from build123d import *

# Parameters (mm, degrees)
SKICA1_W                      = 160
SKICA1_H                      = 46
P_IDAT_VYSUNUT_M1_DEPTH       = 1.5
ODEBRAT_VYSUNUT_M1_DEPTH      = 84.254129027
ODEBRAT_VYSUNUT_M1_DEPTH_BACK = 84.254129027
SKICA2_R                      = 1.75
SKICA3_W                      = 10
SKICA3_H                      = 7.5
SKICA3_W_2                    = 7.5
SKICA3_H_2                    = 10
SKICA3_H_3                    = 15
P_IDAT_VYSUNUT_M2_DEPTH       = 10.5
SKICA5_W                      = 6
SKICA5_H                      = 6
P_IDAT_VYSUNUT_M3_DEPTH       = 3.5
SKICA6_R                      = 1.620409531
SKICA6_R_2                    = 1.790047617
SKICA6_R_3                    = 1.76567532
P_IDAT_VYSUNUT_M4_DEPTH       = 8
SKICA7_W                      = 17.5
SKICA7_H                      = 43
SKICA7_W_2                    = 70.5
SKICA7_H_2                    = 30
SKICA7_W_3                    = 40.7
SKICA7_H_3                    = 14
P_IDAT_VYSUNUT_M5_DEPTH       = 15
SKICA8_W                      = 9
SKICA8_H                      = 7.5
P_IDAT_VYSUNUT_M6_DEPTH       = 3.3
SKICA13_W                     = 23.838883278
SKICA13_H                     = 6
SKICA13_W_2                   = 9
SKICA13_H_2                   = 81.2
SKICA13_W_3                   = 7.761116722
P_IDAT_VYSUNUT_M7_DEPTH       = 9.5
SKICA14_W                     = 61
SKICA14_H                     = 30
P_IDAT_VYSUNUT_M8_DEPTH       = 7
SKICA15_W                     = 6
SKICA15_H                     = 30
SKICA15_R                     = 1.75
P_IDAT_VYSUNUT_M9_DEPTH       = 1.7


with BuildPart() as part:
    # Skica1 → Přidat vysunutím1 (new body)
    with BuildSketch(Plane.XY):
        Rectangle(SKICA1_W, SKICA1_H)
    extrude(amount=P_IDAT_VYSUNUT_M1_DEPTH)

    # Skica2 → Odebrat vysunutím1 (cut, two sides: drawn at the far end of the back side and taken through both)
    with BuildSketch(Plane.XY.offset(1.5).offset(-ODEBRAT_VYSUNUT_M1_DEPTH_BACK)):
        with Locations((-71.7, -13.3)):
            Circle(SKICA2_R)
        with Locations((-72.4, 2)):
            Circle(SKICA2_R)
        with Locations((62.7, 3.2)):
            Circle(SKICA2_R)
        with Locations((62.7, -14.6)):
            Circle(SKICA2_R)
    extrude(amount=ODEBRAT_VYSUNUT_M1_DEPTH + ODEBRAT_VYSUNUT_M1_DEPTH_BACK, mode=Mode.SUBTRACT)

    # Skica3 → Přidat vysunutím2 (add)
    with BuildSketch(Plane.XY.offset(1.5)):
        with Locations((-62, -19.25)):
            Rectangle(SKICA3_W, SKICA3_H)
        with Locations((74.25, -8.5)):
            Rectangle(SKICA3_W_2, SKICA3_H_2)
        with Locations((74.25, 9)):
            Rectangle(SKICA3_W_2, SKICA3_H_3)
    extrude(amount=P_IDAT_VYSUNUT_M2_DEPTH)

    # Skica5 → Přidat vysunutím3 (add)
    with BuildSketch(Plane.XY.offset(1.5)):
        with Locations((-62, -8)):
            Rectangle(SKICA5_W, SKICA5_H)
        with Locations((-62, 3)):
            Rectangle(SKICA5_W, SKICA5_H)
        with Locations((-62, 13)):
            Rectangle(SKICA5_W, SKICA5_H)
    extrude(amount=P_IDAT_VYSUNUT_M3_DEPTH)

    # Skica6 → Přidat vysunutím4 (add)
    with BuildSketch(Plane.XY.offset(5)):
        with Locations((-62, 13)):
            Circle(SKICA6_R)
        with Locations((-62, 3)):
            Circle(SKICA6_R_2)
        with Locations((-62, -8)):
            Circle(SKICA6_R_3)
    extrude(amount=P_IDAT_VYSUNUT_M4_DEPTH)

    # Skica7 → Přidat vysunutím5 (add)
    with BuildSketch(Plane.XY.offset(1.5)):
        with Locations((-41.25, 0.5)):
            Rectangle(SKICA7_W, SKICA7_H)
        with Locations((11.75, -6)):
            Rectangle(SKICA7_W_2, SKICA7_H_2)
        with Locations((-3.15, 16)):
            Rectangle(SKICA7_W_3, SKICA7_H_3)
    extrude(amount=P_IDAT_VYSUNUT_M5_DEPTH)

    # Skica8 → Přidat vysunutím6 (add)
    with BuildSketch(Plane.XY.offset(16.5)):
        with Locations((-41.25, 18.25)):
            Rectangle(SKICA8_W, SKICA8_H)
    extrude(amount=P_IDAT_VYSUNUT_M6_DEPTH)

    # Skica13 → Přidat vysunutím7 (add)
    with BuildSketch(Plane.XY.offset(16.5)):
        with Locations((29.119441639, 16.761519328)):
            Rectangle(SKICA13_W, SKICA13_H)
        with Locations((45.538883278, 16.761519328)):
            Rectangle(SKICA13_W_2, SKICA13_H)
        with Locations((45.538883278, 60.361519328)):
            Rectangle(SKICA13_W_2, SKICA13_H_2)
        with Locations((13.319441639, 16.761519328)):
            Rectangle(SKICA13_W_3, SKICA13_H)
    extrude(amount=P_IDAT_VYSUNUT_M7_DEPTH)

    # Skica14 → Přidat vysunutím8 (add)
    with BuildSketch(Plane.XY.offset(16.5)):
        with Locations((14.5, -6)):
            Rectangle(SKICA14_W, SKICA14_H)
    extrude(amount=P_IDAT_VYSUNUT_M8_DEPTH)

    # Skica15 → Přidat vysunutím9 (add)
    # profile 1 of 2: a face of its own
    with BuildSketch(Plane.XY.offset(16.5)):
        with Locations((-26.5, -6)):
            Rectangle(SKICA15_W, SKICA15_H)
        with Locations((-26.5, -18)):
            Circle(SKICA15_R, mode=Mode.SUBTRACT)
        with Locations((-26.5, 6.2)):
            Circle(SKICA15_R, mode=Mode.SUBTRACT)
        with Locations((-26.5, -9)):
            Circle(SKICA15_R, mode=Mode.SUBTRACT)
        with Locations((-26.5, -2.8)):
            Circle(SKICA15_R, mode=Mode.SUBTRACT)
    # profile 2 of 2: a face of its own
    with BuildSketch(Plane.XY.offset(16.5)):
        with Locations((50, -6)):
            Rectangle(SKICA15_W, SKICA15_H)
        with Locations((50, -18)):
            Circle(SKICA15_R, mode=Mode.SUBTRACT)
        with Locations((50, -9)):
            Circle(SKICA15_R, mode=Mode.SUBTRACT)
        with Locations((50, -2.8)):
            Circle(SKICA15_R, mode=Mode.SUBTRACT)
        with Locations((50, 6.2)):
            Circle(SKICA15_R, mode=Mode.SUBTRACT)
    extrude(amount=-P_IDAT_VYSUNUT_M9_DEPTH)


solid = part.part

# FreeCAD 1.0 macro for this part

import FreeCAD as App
import Part
import Sketcher

V = App.Vector

doc = App.newDocument("Part")
body = doc.addObject("PartDesign::Body", "Body")

sketch1 = body.newObject("Sketcher::SketchObject", "Sketch")
sketch1.AttachmentSupport = (doc.getObject("XY_Plane"), [""])
sketch1.MapMode = "FlatFace"
sketch1.addGeometry([
    Part.LineSegment(V(-80, 23, 0), V(-80, -23, 0)),
    Part.LineSegment(V(-80, -23, 0), V(80, -23, 0)),
    Part.LineSegment(V(80, -23, 0), V(80, 23, 0)),
    Part.LineSegment(V(80, 23, 0), V(-80, 23, 0)),
], False)
sketch1.addConstraint([
    Sketcher.Constraint("Coincident", 0, 2, 1, 1),
    Sketcher.Constraint("Coincident", 1, 2, 2, 1),
    Sketcher.Constraint("Coincident", 2, 2, 3, 1),
    Sketcher.Constraint("Coincident", 3, 2, 0, 1),
    Sketcher.Constraint("Vertical", 0),
    Sketcher.Constraint("Horizontal", 1),
    Sketcher.Constraint("Vertical", 2),
    Sketcher.Constraint("Horizontal", 3),
    Sketcher.Constraint("Symmetric", 0, 2, 2, 2, -1, 1),
    Sketcher.Constraint("DistanceX", 1, 1, 1, 2, 160.0),
    Sketcher.Constraint("DistanceY", 0, 2, 0, 1, 46.0),
])
pad1 = body.newObject("PartDesign::Pad", "Pad")
pad1.Profile = sketch1
pad1.Length = 1.5

sketch2 = body.newObject("Sketcher::SketchObject", "Sketch001")
sketch2.AttachmentSupport = (doc.getObject("XY_Plane"), [""])
sketch2.MapMode = "FlatFace"
sketch2.AttachmentOffset = App.Placement(V(0, 0, 1.5), App.Rotation())
sketch2.addGeometry([
    Part.Circle(V(-71.7, -13.3, 0), V(0, 0, 1), 1.75),
    Part.Circle(V(-72.4, 2, 0), V(0, 0, 1), 1.75),
    Part.Circle(V(62.7, 3.2, 0), V(0, 0, 1), 1.75),
    Part.Circle(V(62.7, -14.6, 0), V(0, 0, 1), 1.75),
], False)
sketch2.addConstraint([
    Sketcher.Constraint("Equal", 0, 1),
    Sketcher.Constraint("Equal", 1, 2),
    Sketcher.Constraint("Equal", 2, 3),
    Sketcher.Constraint("Vertical", 2, 3, 3, 3),
    Sketcher.Constraint("Diameter", 0, 3.5),
    Sketcher.Constraint("DistanceY", -1, 1, 1, 3, 2.0),
    Sketcher.Constraint("DistanceX", 0, 3, -1, 1, 71.7),
    Sketcher.Constraint("DistanceY", 0, 3, -1, 1, 13.3),
    Sketcher.Constraint("DistanceX", 1, 3, -1, 1, 72.4),
    Sketcher.Constraint("DistanceX", -1, 1, 2, 3, 62.7),
    Sketcher.Constraint("DistanceY", -1, 1, 2, 3, 3.2),
    Sketcher.Constraint("DistanceY", 3, 3, -1, 1, 14.6),
])
pocket1 = body.newObject("PartDesign::Pocket", "Pocket")
pocket1.Profile = sketch2
pocket1.Type = "ThroughAll"
pocket1.Midplane = True

sketch3 = body.newObject("Sketcher::SketchObject", "Sketch002")
sketch3.AttachmentSupport = (doc.getObject("XY_Plane"), [""])
sketch3.MapMode = "FlatFace"
sketch3.AttachmentOffset = App.Placement(V(0, 0, 1.5), App.Rotation())
sketch3.addGeometry([
    Part.LineSegment(V(-67, -15.5, 0), V(-67, -23, 0)),
    Part.LineSegment(V(-67, -23, 0), V(-57, -23, 0)),
    Part.LineSegment(V(-57, -23, 0), V(-57, -15.5, 0)),
    Part.LineSegment(V(-57, -15.5, 0), V(-67, -15.5, 0)),
    Part.LineSegment(V(70.5, -3.5, 0), V(70.5, -13.5, 0)),
    Part.LineSegment(V(70.5, -13.5, 0), V(78, -13.5, 0)),
    Part.LineSegment(V(78, -13.5, 0), V(78, -3.5, 0)),
    Part.LineSegment(V(78, -3.5, 0), V(70.5, -3.5, 0)),
    Part.LineSegment(V(70.5, 16.5, 0), V(70.5, 1.5, 0)),
    Part.LineSegment(V(70.5, 1.5, 0), V(78, 1.5, 0)),
    Part.LineSegment(V(78, 1.5, 0), V(78, 16.5, 0)),
    Part.LineSegment(V(78, 16.5, 0), V(70.5, 16.5, 0)),
], False)
sketch3.addConstraint([
    Sketcher.Constraint("Coincident", 0, 2, 1, 1),
    Sketcher.Constraint("Coincident", 1, 2, 2, 1),
    Sketcher.Constraint("Coincident", 2, 2, 3, 1),
    Sketcher.Constraint("Coincident", 3, 2, 0, 1),
    Sketcher.Constraint("Coincident", 4, 2, 5, 1),
    Sketcher.Constraint("Coincident", 5, 2, 6, 1),
    Sketcher.Constraint("Coincident", 6, 2, 7, 1),
    Sketcher.Constraint("Coincident", 7, 2, 4, 1),
    Sketcher.Constraint("Coincident", 8, 2, 9, 1),
    Sketcher.Constraint("Coincident", 9, 2, 10, 1),
    Sketcher.Constraint("Coincident", 10, 2, 11, 1),
    Sketcher.Constraint("Coincident", 11, 2, 8, 1),
    Sketcher.Constraint("Vertical", 0),
    Sketcher.Constraint("Horizontal", 1),
    Sketcher.Constraint("Vertical", 2),
    Sketcher.Constraint("Horizontal", 3),
    Sketcher.Constraint("Vertical", 4),
    Sketcher.Constraint("Horizontal", 5),
    Sketcher.Constraint("Vertical", 6),
    Sketcher.Constraint("Horizontal", 7),
    Sketcher.Constraint("Vertical", 8),
    Sketcher.Constraint("Horizontal", 9),
    Sketcher.Constraint("Vertical", 10),
    Sketcher.Constraint("Horizontal", 11),
    Sketcher.Constraint("Vertical", 7, 2, 8, 2),
    Sketcher.Constraint("Vertical", 6, 2, 9, 2),
    Sketcher.Constraint("Equal", 11, 0),
    Sketcher.Constraint("Equal", 3, 4),
    Sketcher.Constraint("DistanceX", 1, 1, 1, 2, 10.0),
    Sketcher.Constraint("DistanceY", 8, 2, 8, 1, 15.0),
    Sketcher.Constraint("DistanceX", 5, 1, 5, 2, 7.5),
    Sketcher.Constraint("DistanceX", 0, 2, -1, 1, 67.0),
    Sketcher.Constraint("DistanceY", 0, 2, -1, 1, 23.0),
    Sketcher.Constraint("DistanceX", -1, 1, 5, 2, 78.0),
    Sketcher.Constraint("DistanceY", 2, 2, 4, 2, 2.0),
    Sketcher.Constraint("DistanceY", 7, 2, 8, 2, 5.0),
])
pad2 = body.newObject("PartDesign::Pad", "Pad001")
pad2.Profile = sketch3
pad2.Length = 10.5

sketch4 = body.newObject("Sketcher::SketchObject", "Sketch003")
sketch4.AttachmentSupport = (doc.getObject("XY_Plane"), [""])
sketch4.MapMode = "FlatFace"
sketch4.AttachmentOffset = App.Placement(V(0, 0, 1.5), App.Rotation())
sketch4.addGeometry([
    Part.LineSegment(V(-65, -5, 0), V(-65, -11, 0)),
    Part.LineSegment(V(-65, -11, 0), V(-59, -11, 0)),
    Part.LineSegment(V(-59, -11, 0), V(-59, -5, 0)),
    Part.LineSegment(V(-59, -5, 0), V(-65, -5, 0)),
    Part.LineSegment(V(-65, 6, 0), V(-65, 0, 0)),
    Part.LineSegment(V(-65, 0, 0), V(-59, 0, 0)),
    Part.LineSegment(V(-59, 0, 0), V(-59, 6, 0)),
    Part.LineSegment(V(-59, 6, 0), V(-65, 6, 0)),
    Part.LineSegment(V(-65, 16, 0), V(-65, 10, 0)),
    Part.LineSegment(V(-65, 10, 0), V(-59, 10, 0)),
    Part.LineSegment(V(-59, 10, 0), V(-59, 16, 0)),
    Part.LineSegment(V(-59, 16, 0), V(-65, 16, 0)),
], False)
sketch4.addConstraint([
    Sketcher.Constraint("Coincident", 0, 2, 1, 1),
    Sketcher.Constraint("Coincident", 1, 2, 2, 1),
    Sketcher.Constraint("Coincident", 2, 2, 3, 1),
    Sketcher.Constraint("Coincident", 3, 2, 0, 1),
    Sketcher.Constraint("Coincident", 4, 2, 5, 1),
    Sketcher.Constraint("Coincident", 5, 2, 6, 1),
    Sketcher.Constraint("Coincident", 6, 2, 7, 1),
    Sketcher.Constraint("Coincident", 7, 2, 4, 1),
    Sketcher.Constraint("Coincident", 8, 2, 9, 1),
    Sketcher.Constraint("Coincident", 9, 2, 10, 1),
    Sketcher.Constraint("Coincident", 10, 2, 11, 1),
    Sketcher.Constraint("Coincident", 11, 2, 8, 1),
    Sketcher.Constraint("Vertical", 0),
    Sketcher.Constraint("Horizontal", 1),
    Sketcher.Constraint("Vertical", 2),
    Sketcher.Constraint("Horizontal", 3),
    Sketcher.Constraint("Vertical", 4),
    Sketcher.Constraint("Horizontal", 5),
    Sketcher.Constraint("Vertical", 6),
    Sketcher.Constraint("Horizontal", 7),
    Sketcher.Constraint("Vertical", 8),
    Sketcher.Constraint("Horizontal", 9),
    Sketcher.Constraint("Vertical", 10),
    Sketcher.Constraint("Horizontal", 11),
    Sketcher.Constraint("PointOnObject", 4, 2, -1),
    Sketcher.Constraint("Vertical", 3, 2, 4, 2),
    Sketcher.Constraint("Vertical", 2, 2, 5, 2),
    Sketcher.Constraint("Vertical", 7, 2, 8, 2),
    Sketcher.Constraint("Vertical", 6, 2, 9, 2),
    Sketcher.Constraint("Equal", 11, 0),
    Sketcher.Constraint("Equal", 2, 4),
    Sketcher.Constraint("Equal", 6, 8),
    Sketcher.Constraint("DistanceX", 1, 1, 1, 2, 6.0),
    Sketcher.Constraint("DistanceX", 0, 2, -1, 1, 65.0),
    Sketcher.Constraint("DistanceY", 0, 2, -1, 1, 11.0),
    Sketcher.Constraint("DistanceY", -1, 1, 8, 2, 10.0),
])
pad3 = body.newObject("PartDesign::Pad", "Pad002")
pad3.Profile = sketch4
pad3.Length = 3.5

sketch5 = body.newObject("Sketcher::SketchObject", "Sketch004")
sketch5.AttachmentSupport = (doc.getObject("XY_Plane"), [""])
sketch5.MapMode = "FlatFace"
sketch5.AttachmentOffset = App.Placement(V(0, 0, 5), App.Rotation())
sketch5.addGeometry([
    Part.Circle(V(-62, 13, 0), V(0, 0, 1), 1.62041),
    Part.Circle(V(-62, 3, 0), V(0, 0, 1), 1.790048),
    Part.Circle(V(-62, -8, 0), V(0, 0, 1), 1.765675),
], False)
sketch5.addConstraint([
    Sketcher.Constraint("Vertical", 0, 3, 1, 3),
    Sketcher.Constraint("Vertical", 1, 3, 2, 3),
    Sketcher.Constraint("DistanceX", 0, 3, -1, 1, 62.0),
    Sketcher.Constraint("DistanceY", -1, 1, 0, 3, 13.0),
    Sketcher.Constraint("DistanceY", -1, 1, 1, 3, 3.0),
    Sketcher.Constraint("DistanceY", 2, 3, -1, 1, 8.0),
    Sketcher.Constraint("Diameter", 0, 3.240819),
    Sketcher.Constraint("Diameter", 2, 3.531351),
    Sketcher.Constraint("Diameter", 1, 3.580095),
])
pad4 = body.newObject("PartDesign::Pad", "Pad003")
pad4.Profile = sketch5
pad4.Length = 8

sketch6 = body.newObject("Sketcher::SketchObject", "Sketch005")
sketch6.AttachmentSupport = (doc.getObject("XY_Plane"), [""])
sketch6.MapMode = "FlatFace"
sketch6.AttachmentOffset = App.Placement(V(0, 0, 1.5), App.Rotation())
sketch6.addGeometry([
    Part.LineSegment(V(-50, 22, 0), V(-50, -21, 0)),
    Part.LineSegment(V(-50, -21, 0), V(-32.5, -21, 0)),
    Part.LineSegment(V(-32.5, -21, 0), V(-32.5, 22, 0)),
    Part.LineSegment(V(-32.5, 22, 0), V(-50, 22, 0)),
    Part.LineSegment(V(-23.5, -21, 0), V(47, -21, 0)),
    Part.LineSegment(V(47, -21, 0), V(47, 9, 0)),
    Part.LineSegment(V(47, 9, 0), V(17.2, 9, 0)),
    Part.LineSegment(V(17.2, 9, 0), V(17.2, 23, 0)),
    Part.LineSegment(V(17.2, 23, 0), V(-23.5, 23, 0)),
    Part.LineSegment(V(-23.5, 23, 0), V(-23.5, -21, 0)),
], False)
sketch6.addConstraint([
    Sketcher.Constraint("Coincident", 0, 2, 1, 1),
    Sketcher.Constraint("Coincident", 1, 2, 2, 1),
    Sketcher.Constraint("Coincident", 2, 2, 3, 1),
    Sketcher.Constraint("Coincident", 3, 2, 0, 1),
    Sketcher.Constraint("Coincident", 4, 2, 5, 1),
    Sketcher.Constraint("Coincident", 5, 2, 6, 1),
    Sketcher.Constraint("Coincident", 6, 2, 7, 1),
    Sketcher.Constraint("Coincident", 7, 2, 8, 1),
    Sketcher.Constraint("Coincident", 8, 2, 9, 1),
    Sketcher.Constraint("Coincident", 9, 2, 4, 1),
    Sketcher.Constraint("Vertical", 0),
    Sketcher.Constraint("Horizontal", 1),
    Sketcher.Constraint("Vertical", 2),
    Sketcher.Constraint("Horizontal", 3),
    Sketcher.Constraint("Horizontal", 4),
    Sketcher.Constraint("Vertical", 5),
    Sketcher.Constraint("Horizontal", 6),
    Sketcher.Constraint("Vertical", 7),
    Sketcher.Constraint("Horizontal", 8),
    Sketcher.Constraint("Vertical", 9),
    Sketcher.Constraint("Horizontal", 1, 2, 4, 2),
    Sketcher.Constraint("DistanceY", 0, 2, 0, 1, 43.0),
    Sketcher.Constraint("DistanceY", 5, 1, 5, 2, 30.0),
    Sketcher.Constraint("DistanceY", 7, 1, 7, 2, 14.0),
    Sketcher.Constraint("DistanceX", 1, 1, 1, 2, 17.5),
    Sketcher.Constraint("DistanceX", 4, 1, 4, 2, 70.5),
    Sketcher.Constraint("DistanceX", 6, 2, 6, 1, 29.8),
    Sketcher.Constraint("DistanceX", 0, 2, -1, 1, 50.0),
    Sketcher.Constraint("DistanceY", 0, 2, -1, 1, 21.0),
    Sketcher.Constraint("DistanceX", -1, 1, 4, 2, 47.0),
])
pad5 = body.newObject("PartDesign::Pad", "Pad004")
pad5.Profile = sketch6
pad5.Length = 15

sketch7 = body.newObject("Sketcher::SketchObject", "Sketch006")
sketch7.AttachmentSupport = (doc.getObject("XY_Plane"), [""])
sketch7.MapMode = "FlatFace"
sketch7.AttachmentOffset = App.Placement(V(0, 0, 16.5), App.Rotation())
sketch7.addGeometry([
    Part.LineSegment(V(-45.75, 22, 0), V(-45.75, 14.5, 0)),
    Part.LineSegment(V(-45.75, 14.5, 0), V(-36.75, 14.5, 0)),
    Part.LineSegment(V(-36.75, 14.5, 0), V(-36.75, 22, 0)),
    Part.LineSegment(V(-36.75, 22, 0), V(-45.75, 22, 0)),
], False)
sketch7.addConstraint([
    Sketcher.Constraint("Coincident", 0, 2, 1, 1),
    Sketcher.Constraint("Coincident", 1, 2, 2, 1),
    Sketcher.Constraint("Coincident", 2, 2, 3, 1),
    Sketcher.Constraint("Coincident", 3, 2, 0, 1),
    Sketcher.Constraint("Vertical", 0),
    Sketcher.Constraint("Horizontal", 1),
    Sketcher.Constraint("Vertical", 2),
    Sketcher.Constraint("Horizontal", 3),
    Sketcher.Constraint("DistanceX", 1, 1, 1, 2, 9.0),
    Sketcher.Constraint("DistanceY", 0, 2, 0, 1, 7.5),
    Sketcher.Constraint("DistanceY", -1, 1, 2, 2, 22.0),
    Sketcher.Constraint("DistanceX", 0, 2, -1, 1, 45.75),
])
pad6 = body.newObject("PartDesign::Pad", "Pad005")
pad6.Profile = sketch7
pad6.Length = 3.3

sketch8 = body.newObject("Sketcher::SketchObject", "Sketch007")
sketch8.AttachmentSupport = (doc.getObject("XY_Plane"), [""])
sketch8.MapMode = "FlatFace"
sketch8.AttachmentOffset = App.Placement(V(0, 0, 16.5), App.Rotation())
sketch8.addGeometry([
    Part.LineSegment(V(50.038883, 13.761519, 0), V(50.038883, 100.961519, 0)),
    Part.LineSegment(V(50.038883, 100.961519, 0), V(41.038883, 100.961519, 0)),
    Part.LineSegment(V(41.038883, 100.961519, 0), V(41.038883, 19.761519, 0)),
    Part.LineSegment(V(41.038883, 19.761519, 0), V(9.438883, 19.761519, 0)),
    Part.LineSegment(V(9.438883, 19.761519, 0), V(9.438883, 13.761519, 0)),
    Part.LineSegment(V(9.438883, 13.761519, 0), V(50.038883, 13.761519, 0)),
], False)
sketch8.addConstraint([
    Sketcher.Constraint("Coincident", 0, 2, 1, 1),
    Sketcher.Constraint("Coincident", 1, 2, 2, 1),
    Sketcher.Constraint("Coincident", 2, 2, 3, 1),
    Sketcher.Constraint("Coincident", 3, 2, 4, 1),
    Sketcher.Constraint("Coincident", 4, 2, 5, 1),
    Sketcher.Constraint("Coincident", 5, 2, 0, 1),
    Sketcher.Constraint("Vertical", 0),
    Sketcher.Constraint("Horizontal", 1),
    Sketcher.Constraint("Vertical", 2),
    Sketcher.Constraint("Horizontal", 3),
    Sketcher.Constraint("Vertical", 4),
    Sketcher.Constraint("Horizontal", 5),
    Sketcher.Constraint("DistanceX", 1, 2, 1, 1, 9.0),
    Sketcher.Constraint("DistanceY", 4, 2, 4, 1, 6.0),
    Sketcher.Constraint("DistanceX", 3, 2, 3, 1, 31.6),
    Sketcher.Constraint("DistanceY", 0, 1, 0, 2, 87.2),
    Sketcher.Constraint("DistanceY", -1, 1, 0, 2, 100.961519),
    Sketcher.Constraint("DistanceX", -1, 1, 0, 2, 50.038883),
])
pad7 = body.newObject("PartDesign::Pad", "Pad006")
pad7.Profile = sketch8
pad7.Length = 9.5

sketch9 = body.newObject("Sketcher::SketchObject", "Sketch008")
sketch9.AttachmentSupport = (doc.getObject("XY_Plane"), [""])
sketch9.MapMode = "FlatFace"
sketch9.AttachmentOffset = App.Placement(V(0, 0, 16.5), App.Rotation())
sketch9.addGeometry([
    Part.LineSegment(V(-16, 9, 0), V(-16, -21, 0)),
    Part.LineSegment(V(-16, -21, 0), V(45, -21, 0)),
    Part.LineSegment(V(45, -21, 0), V(45, 9, 0)),
    Part.LineSegment(V(45, 9, 0), V(-16, 9, 0)),
], False)
sketch9.addConstraint([
    Sketcher.Constraint("Coincident", 0, 2, 1, 1),
    Sketcher.Constraint("Coincident", 1, 2, 2, 1),
    Sketcher.Constraint("Coincident", 2, 2, 3, 1),
    Sketcher.Constraint("Coincident", 3, 2, 0, 1),
    Sketcher.Constraint("Vertical", 0),
    Sketcher.Constraint("Horizontal", 1),
    Sketcher.Constraint("Vertical", 2),
    Sketcher.Constraint("Horizontal", 3),
    Sketcher.Constraint("DistanceX", 1, 1, 1, 2, 61.0),
    Sketcher.Constraint("DistanceY", 0, 2, 0, 1, 30.0),
    Sketcher.Constraint("DistanceX", 0, 2, -1, 1, 16.0),
    Sketcher.Constraint("DistanceY", 0, 2, -1, 1, 21.0),
])
pad8 = body.newObject("PartDesign::Pad", "Pad007")
pad8.Profile = sketch9
pad8.Length = 7

sketch10 = body.newObject("Sketcher::SketchObject", "Sketch009")
sketch10.AttachmentSupport = (doc.getObject("XY_Plane"), [""])
sketch10.MapMode = "FlatFace"
sketch10.AttachmentOffset = App.Placement(V(0, 0, 16.5), App.Rotation())
sketch10.addGeometry([
    Part.LineSegment(V(-29.5, 9, 0), V(-29.5, -21, 0)),
    Part.LineSegment(V(-29.5, -21, 0), V(-23.5, -21, 0)),
    Part.LineSegment(V(-23.5, -21, 0), V(-23.5, 9, 0)),
    Part.LineSegment(V(-23.5, 9, 0), V(-29.5, 9, 0)),
    Part.Circle(V(-26.5, -18, 0), V(0, 0, 1), 1.75),
    Part.Circle(V(-26.5, -9, 0), V(0, 0, 1), 1.75),
    Part.Circle(V(-26.5, -2.8, 0), V(0, 0, 1), 1.75),
    Part.Circle(V(-26.5, 6.2, 0), V(0, 0, 1), 1.75),
    Part.LineSegment(V(47, 9, 0), V(47, -21, 0)),
    Part.LineSegment(V(47, -21, 0), V(53, -21, 0)),
    Part.LineSegment(V(53, -21, 0), V(53, 9, 0)),
    Part.LineSegment(V(53, 9, 0), V(47, 9, 0)),
    Part.Circle(V(50, -18, 0), V(0, 0, 1), 1.75),
    Part.Circle(V(50, -9, 0), V(0, 0, 1), 1.75),
    Part.Circle(V(50, -2.8, 0), V(0, 0, 1), 1.75),
    Part.Circle(V(50, 6.2, 0), V(0, 0, 1), 1.75),
], False)
sketch10.addConstraint([
    Sketcher.Constraint("Coincident", 0, 2, 1, 1),
    Sketcher.Constraint("Coincident", 1, 2, 2, 1),
    Sketcher.Constraint("Coincident", 2, 2, 3, 1),
    Sketcher.Constraint("Coincident", 3, 2, 0, 1),
    Sketcher.Constraint("Coincident", 8, 2, 9, 1),
    Sketcher.Constraint("Coincident", 9, 2, 10, 1),
    Sketcher.Constraint("Coincident", 10, 2, 11, 1),
    Sketcher.Constraint("Coincident", 11, 2, 8, 1),
    Sketcher.Constraint("Vertical", 0),
    Sketcher.Constraint("Horizontal", 1),
    Sketcher.Constraint("Vertical", 2),
    Sketcher.Constraint("Horizontal", 3),
    Sketcher.Constraint("Vertical", 8),
    Sketcher.Constraint("Horizontal", 9),
    Sketcher.Constraint("Vertical", 10),
    Sketcher.Constraint("Horizontal", 11),
    Sketcher.Constraint("Equal", 4, 5),
    Sketcher.Constraint("Equal", 5, 6),
    Sketcher.Constraint("Equal", 6, 7),
    Sketcher.Constraint("Equal", 7, 12),
    Sketcher.Constraint("Equal", 12, 13),
    Sketcher.Constraint("Equal", 13, 14),
    Sketcher.Constraint("Equal", 14, 15),
    Sketcher.Constraint("Horizontal", 4, 3, 12, 3),
    Sketcher.Constraint("Horizontal", 5, 3, 13, 3),
    Sketcher.Constraint("Horizontal", 6, 3, 14, 3),
    Sketcher.Constraint("Horizontal", 7, 3, 15, 3),
    Sketcher.Constraint("Horizontal", 1, 2, 8, 2),
    Sketcher.Constraint("Horizontal", 3, 2, 10, 2),
    Sketcher.Constraint("Vertical", 4, 3, 5, 3),
    Sketcher.Constraint("Vertical", 5, 3, 6, 3),
    Sketcher.Constraint("Vertical", 6, 3, 7, 3),
    Sketcher.Constraint("Vertical", 12, 3, 13, 3),
    Sketcher.Constraint("Vertical", 13, 3, 14, 3),
    Sketcher.Constraint("Vertical", 14, 3, 15, 3),
    Sketcher.Constraint("Equal", 3, 9),
    Sketcher.Constraint("Diameter", 4, 3.5),
    Sketcher.Constraint("DistanceX", 1, 1, 1, 2, 6.0),
    Sketcher.Constraint("DistanceY", 0, 2, 0, 1, 30.0),
    Sketcher.Constraint("DistanceY", 4, 3, -1, 1, 18.0),
    Sketcher.Constraint("DistanceY", 5, 3, -1, 1, 9.0),
    Sketcher.Constraint("DistanceX", -1, 1, 12, 3, 50.0),
    Sketcher.Constraint("DistanceY", 0, 2, -1, 1, 21.0),
    Sketcher.Constraint("DistanceX", -1, 1, 8, 2, 47.0),
    Sketcher.Constraint("DistanceY", 6, 3, 7, 3, 9.0),
    Sketcher.Constraint("DistanceX", 0, 2, 4, 3, 3.0),
    Sketcher.Constraint("DistanceX", 4, 3, -1, 1, 26.5),
    Sketcher.Constraint("DistanceY", 6, 3, -1, 1, 2.8),
])
pad9 = body.newObject("PartDesign::Pad", "Pad008")
pad9.Profile = sketch10
pad9.Length = 1.7
pad9.Reversed = True

doc.recompute()
